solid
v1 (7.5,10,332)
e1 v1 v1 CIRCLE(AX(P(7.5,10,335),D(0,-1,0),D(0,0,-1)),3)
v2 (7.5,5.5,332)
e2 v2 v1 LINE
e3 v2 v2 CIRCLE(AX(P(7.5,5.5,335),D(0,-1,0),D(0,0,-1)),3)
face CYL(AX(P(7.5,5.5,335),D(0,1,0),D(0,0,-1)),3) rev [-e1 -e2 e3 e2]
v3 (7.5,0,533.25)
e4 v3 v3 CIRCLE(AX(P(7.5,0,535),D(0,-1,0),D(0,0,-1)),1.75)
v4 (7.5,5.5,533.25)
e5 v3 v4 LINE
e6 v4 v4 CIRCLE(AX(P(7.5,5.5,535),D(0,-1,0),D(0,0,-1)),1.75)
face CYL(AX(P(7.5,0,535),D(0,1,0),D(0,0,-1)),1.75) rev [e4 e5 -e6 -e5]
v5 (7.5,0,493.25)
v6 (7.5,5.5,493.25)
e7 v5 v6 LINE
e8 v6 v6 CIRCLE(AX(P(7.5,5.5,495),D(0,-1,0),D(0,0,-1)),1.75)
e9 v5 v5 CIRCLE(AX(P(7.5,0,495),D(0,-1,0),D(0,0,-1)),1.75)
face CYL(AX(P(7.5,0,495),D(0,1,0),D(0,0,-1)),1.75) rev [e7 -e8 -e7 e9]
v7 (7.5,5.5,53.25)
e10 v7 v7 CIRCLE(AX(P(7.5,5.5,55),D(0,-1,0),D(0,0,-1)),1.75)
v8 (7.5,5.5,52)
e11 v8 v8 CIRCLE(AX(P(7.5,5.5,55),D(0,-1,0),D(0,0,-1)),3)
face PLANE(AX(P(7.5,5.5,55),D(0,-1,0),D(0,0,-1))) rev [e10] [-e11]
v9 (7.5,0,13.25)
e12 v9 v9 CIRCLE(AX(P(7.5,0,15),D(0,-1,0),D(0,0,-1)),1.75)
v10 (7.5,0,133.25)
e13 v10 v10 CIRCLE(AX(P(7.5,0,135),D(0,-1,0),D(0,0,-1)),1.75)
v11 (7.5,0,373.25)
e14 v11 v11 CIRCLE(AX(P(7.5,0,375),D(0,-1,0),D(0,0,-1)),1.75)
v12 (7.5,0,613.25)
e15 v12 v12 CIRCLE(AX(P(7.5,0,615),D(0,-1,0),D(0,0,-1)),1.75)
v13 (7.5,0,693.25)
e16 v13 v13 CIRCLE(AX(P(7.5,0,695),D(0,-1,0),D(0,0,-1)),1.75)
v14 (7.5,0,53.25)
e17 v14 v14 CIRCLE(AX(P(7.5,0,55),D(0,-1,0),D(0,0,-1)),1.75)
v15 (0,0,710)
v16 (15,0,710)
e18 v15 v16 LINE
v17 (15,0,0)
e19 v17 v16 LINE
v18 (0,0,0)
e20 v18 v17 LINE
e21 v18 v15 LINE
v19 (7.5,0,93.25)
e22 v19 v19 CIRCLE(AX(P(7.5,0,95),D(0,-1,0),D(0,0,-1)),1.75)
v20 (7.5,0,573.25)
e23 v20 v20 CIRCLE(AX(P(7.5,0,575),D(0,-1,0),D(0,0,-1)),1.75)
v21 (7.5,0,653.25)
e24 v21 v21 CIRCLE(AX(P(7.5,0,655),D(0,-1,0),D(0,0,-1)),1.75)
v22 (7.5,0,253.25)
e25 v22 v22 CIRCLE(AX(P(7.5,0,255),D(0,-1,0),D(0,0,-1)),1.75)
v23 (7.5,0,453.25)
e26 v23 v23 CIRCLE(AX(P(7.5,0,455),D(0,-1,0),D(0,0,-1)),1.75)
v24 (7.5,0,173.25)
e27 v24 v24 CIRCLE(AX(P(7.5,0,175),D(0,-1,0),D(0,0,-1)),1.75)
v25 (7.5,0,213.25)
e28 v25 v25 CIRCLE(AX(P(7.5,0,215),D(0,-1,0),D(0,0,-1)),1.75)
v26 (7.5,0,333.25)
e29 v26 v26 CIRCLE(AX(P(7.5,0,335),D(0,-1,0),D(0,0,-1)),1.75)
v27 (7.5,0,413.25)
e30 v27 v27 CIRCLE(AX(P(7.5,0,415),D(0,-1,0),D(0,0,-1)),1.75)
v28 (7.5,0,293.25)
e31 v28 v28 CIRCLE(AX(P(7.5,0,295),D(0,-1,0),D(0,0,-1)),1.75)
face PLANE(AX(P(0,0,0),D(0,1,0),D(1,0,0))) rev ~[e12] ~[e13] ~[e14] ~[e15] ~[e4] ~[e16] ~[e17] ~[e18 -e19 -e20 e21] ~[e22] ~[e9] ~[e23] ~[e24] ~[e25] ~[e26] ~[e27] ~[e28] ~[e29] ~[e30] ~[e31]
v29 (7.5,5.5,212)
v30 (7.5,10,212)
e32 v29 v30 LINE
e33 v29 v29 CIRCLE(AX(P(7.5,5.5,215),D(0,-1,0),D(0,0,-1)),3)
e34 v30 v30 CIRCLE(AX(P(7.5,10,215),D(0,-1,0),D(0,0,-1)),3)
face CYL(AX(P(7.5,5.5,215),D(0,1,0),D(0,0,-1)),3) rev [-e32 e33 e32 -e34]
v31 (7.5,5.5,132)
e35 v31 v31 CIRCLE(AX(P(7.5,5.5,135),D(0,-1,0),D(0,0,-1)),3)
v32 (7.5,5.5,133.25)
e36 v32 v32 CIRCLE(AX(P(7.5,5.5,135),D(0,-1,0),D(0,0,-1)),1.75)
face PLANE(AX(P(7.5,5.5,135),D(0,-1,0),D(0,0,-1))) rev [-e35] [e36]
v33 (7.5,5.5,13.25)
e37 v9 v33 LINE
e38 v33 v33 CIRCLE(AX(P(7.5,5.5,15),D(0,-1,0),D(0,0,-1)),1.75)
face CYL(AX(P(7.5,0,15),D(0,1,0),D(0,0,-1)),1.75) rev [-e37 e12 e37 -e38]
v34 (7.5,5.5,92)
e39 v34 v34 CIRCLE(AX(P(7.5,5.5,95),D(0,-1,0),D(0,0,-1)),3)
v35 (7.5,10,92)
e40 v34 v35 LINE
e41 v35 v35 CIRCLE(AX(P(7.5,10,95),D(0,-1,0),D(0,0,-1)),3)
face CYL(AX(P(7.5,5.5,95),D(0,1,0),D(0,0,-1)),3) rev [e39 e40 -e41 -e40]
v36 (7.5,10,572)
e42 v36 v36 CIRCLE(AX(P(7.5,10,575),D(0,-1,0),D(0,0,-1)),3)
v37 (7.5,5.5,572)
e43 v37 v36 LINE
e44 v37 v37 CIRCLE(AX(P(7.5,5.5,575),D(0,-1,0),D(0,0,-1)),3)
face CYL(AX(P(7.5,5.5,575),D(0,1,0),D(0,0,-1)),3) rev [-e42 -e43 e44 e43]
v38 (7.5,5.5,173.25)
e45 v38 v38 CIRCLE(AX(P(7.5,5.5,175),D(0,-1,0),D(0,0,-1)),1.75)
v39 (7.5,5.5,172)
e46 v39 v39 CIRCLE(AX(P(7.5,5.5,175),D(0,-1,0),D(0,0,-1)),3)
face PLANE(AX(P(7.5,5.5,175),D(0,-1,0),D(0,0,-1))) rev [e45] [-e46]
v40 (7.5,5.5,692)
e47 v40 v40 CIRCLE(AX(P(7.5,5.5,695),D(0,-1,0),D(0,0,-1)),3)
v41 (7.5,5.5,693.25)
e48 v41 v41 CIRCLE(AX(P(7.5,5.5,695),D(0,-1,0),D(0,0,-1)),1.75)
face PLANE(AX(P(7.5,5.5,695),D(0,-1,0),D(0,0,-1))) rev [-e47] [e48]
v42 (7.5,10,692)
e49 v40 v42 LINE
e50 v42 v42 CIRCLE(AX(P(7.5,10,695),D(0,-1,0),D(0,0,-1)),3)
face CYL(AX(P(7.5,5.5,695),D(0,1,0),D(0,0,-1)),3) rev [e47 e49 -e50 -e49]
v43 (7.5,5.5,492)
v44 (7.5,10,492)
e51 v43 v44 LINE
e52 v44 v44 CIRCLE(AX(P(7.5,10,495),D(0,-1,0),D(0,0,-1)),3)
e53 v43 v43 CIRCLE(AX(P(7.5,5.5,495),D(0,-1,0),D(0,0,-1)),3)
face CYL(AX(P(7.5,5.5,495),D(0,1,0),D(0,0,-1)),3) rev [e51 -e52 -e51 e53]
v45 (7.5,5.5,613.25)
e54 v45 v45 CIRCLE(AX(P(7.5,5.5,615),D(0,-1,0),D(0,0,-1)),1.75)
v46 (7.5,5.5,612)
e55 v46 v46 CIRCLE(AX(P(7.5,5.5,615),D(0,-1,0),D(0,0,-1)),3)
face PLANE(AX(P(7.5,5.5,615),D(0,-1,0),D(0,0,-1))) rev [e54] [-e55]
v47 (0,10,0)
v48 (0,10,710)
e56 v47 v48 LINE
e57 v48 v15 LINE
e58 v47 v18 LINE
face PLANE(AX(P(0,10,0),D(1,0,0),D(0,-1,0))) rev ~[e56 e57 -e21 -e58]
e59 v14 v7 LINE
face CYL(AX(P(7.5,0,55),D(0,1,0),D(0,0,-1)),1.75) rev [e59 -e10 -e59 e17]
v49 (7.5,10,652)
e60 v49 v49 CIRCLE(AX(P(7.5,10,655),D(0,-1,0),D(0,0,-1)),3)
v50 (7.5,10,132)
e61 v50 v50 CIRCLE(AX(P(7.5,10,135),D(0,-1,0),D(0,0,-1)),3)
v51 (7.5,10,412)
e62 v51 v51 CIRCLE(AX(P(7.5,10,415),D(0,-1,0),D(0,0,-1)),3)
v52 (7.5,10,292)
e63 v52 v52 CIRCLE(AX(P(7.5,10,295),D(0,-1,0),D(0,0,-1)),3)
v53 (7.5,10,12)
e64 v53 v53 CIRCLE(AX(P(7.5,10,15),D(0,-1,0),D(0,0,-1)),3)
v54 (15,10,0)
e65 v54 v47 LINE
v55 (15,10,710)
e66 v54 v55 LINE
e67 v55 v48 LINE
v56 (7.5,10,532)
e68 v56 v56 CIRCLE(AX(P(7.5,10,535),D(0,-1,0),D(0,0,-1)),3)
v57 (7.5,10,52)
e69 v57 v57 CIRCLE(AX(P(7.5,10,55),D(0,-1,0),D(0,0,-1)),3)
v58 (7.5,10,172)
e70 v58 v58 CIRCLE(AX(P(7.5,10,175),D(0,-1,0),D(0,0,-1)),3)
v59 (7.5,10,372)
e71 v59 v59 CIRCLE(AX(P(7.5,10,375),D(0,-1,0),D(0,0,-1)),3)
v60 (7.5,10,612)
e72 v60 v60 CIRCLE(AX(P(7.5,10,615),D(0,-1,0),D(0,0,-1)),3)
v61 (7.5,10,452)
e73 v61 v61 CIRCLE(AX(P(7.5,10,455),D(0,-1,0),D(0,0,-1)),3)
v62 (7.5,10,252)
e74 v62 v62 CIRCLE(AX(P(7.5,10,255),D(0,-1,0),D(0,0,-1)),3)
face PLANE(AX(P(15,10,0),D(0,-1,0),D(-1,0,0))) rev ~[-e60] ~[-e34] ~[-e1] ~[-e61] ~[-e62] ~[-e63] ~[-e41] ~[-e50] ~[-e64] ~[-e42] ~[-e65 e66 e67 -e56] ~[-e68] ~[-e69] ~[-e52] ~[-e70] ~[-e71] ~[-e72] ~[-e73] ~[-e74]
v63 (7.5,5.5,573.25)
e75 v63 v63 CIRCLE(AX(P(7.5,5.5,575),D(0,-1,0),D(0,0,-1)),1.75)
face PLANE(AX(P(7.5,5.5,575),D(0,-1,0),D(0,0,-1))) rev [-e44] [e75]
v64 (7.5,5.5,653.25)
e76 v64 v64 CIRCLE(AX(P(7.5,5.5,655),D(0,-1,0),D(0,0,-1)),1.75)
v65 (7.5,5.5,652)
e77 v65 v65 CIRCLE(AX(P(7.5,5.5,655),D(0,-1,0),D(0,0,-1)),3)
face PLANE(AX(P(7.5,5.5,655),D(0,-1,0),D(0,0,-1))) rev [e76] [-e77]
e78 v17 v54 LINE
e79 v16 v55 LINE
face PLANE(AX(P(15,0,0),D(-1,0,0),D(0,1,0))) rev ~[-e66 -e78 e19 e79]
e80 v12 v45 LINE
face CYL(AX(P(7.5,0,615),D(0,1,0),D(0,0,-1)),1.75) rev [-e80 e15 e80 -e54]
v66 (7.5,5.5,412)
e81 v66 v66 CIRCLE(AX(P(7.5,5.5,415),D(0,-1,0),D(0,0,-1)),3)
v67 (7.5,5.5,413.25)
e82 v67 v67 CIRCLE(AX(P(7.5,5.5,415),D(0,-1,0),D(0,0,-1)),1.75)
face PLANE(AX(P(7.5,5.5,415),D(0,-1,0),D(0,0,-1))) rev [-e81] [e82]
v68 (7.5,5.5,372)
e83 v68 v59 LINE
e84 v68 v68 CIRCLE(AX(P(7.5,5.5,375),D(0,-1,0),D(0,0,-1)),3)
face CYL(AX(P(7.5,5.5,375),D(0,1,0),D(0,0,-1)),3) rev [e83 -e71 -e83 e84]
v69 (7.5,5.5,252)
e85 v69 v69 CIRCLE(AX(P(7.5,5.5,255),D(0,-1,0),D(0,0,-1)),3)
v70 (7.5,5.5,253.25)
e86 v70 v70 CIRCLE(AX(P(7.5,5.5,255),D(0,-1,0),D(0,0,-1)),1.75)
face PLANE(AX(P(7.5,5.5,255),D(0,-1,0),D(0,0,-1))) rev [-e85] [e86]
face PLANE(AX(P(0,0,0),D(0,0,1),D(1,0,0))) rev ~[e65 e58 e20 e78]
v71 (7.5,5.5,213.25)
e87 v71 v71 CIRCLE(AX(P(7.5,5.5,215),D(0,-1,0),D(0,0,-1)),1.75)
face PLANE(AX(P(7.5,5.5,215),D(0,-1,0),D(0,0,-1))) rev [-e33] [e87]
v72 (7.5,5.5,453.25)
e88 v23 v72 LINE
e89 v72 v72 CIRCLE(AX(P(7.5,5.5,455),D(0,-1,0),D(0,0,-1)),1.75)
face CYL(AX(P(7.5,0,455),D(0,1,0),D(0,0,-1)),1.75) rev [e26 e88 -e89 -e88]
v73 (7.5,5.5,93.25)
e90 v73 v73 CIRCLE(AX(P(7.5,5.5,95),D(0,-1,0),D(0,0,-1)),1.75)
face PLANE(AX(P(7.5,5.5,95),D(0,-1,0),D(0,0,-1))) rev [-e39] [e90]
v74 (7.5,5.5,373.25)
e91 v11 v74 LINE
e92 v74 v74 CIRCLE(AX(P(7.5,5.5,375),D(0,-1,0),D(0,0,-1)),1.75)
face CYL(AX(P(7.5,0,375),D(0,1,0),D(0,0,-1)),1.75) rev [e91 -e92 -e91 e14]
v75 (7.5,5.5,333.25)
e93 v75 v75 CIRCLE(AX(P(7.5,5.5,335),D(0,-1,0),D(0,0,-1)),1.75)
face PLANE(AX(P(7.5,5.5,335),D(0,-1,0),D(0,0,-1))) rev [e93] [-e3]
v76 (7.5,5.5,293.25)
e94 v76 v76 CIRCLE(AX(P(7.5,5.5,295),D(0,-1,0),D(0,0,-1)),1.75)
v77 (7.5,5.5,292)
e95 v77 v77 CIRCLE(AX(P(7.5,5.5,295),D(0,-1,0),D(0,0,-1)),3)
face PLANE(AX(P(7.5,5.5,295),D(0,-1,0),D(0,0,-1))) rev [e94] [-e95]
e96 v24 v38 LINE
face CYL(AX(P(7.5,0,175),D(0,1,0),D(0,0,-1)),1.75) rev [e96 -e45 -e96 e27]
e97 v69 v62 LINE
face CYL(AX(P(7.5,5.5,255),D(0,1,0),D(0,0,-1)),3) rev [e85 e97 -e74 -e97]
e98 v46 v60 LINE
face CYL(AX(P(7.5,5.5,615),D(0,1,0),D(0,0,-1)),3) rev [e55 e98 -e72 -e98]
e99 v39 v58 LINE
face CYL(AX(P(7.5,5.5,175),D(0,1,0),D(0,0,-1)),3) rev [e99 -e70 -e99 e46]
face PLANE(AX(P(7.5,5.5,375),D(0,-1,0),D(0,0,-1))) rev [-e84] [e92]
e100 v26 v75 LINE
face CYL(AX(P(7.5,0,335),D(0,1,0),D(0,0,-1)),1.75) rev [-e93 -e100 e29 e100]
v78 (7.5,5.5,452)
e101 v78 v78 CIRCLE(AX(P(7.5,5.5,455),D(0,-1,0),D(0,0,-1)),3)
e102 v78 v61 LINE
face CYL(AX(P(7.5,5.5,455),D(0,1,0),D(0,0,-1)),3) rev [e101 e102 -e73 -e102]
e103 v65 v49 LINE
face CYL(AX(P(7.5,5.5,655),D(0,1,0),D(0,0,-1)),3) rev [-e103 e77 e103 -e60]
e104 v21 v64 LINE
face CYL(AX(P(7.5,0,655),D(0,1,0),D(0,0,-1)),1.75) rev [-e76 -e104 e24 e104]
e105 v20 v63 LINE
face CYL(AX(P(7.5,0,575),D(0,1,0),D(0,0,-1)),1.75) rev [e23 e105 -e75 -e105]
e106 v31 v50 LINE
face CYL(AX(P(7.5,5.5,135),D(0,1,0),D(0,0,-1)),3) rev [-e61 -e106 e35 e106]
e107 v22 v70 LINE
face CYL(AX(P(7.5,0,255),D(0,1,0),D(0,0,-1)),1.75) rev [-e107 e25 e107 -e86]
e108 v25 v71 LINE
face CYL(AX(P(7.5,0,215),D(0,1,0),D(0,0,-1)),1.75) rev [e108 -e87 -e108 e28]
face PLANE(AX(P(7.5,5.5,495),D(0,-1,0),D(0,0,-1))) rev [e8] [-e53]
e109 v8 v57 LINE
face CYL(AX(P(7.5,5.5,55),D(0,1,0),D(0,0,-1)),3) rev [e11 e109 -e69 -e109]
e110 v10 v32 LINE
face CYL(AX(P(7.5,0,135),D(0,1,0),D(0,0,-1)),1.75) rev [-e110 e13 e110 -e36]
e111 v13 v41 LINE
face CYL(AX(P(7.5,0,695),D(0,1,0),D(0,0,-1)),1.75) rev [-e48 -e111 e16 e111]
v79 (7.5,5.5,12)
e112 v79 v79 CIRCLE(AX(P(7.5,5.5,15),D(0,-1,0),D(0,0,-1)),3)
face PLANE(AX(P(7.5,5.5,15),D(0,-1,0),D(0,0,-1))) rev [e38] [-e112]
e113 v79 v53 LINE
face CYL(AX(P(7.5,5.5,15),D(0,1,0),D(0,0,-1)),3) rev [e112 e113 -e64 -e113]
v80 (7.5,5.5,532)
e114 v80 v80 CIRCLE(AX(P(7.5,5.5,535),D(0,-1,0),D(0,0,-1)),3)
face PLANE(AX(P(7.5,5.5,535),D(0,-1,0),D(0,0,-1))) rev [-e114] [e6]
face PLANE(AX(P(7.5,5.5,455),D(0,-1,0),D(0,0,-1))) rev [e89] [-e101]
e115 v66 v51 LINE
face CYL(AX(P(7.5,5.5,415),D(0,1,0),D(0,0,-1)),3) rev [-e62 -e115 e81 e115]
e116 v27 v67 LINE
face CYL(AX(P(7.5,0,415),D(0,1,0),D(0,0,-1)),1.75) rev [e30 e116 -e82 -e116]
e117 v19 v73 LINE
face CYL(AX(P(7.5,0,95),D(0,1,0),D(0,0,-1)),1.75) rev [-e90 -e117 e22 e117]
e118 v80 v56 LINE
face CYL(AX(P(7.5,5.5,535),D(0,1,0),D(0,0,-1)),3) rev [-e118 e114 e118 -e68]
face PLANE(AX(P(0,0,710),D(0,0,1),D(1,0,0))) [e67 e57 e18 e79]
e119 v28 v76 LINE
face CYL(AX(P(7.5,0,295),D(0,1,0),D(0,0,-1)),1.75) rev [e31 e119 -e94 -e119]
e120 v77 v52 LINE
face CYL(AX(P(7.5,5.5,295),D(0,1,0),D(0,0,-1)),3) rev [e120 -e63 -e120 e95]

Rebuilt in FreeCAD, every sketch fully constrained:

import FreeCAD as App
import Part
import Sketcher
from FreeCAD import Vector
Q = App.Units.Quantity


def add_polygon(sketch, points):
    """Adds a closed chain of lines whose ends are joined by coincident constraints."""
    first, n = sketch.GeometryCount, len(points)
    for a, b in zip(points, points[1:] + points[:1]):
        sketch.addGeometry(Part.LineSegment(App.Vector(*a, 0), App.Vector(*b, 0)), False)
    for i in range(n):
        sketch.addConstraint(Sketcher.Constraint("Coincident", first + i, 2, first + (i + 1) % n, 1))

doc = App.newDocument("Part")
body = doc.addObject("PartDesign::Body", "Body")

sketch1 = body.newObject("Sketcher::SketchObject", "Sketch")
sketch1.AttachmentSupport = (doc.getObject("XY_Plane"), [""])
sketch1.MapMode = "FlatFace"
add_polygon(sketch1, [(0, 10), (0, 0), (15, 0), (15, 10)])
sketch1.addConstraint([
    Sketcher.Constraint("Vertical", 0),
    Sketcher.Constraint("Horizontal", 1),
    Sketcher.Constraint("Vertical", 2),
    Sketcher.Constraint("Horizontal", 3),
    Sketcher.Constraint("Coincident", 0, 2, -1, 1),
    Sketcher.Constraint("DistanceX", 1, 1, 1, 2, Q("15 mm")),
    Sketcher.Constraint("DistanceY", 0, 2, 0, 1, Q("10 mm")),
])
pad1 = body.newObject("PartDesign::Pad", "Pad")
pad1.Profile = sketch1
pad1.Length = 710

sketch2 = body.newObject("Sketcher::SketchObject", "Sketch001")
sketch2.AttachmentSupport = (doc.getObject("YZ_Plane"), [""])
sketch2.MapMode = "FlatFace"
sketch2.AttachmentOffset = App.Placement(Vector(0, 0, 7.5), App.Rotation())
add_polygon(sketch2, [(10, 12), (10, 15), (0, 15), (0, 13.2), (5.5, 13.2), (5.5, 12)])
sketch2.addGeometry(Part.LineSegment(Vector(10, 15, 0), Vector(0, 15, 0)), True)
sketch2.addConstraint([
    Sketcher.Constraint("Vertical", 0),
    Sketcher.Constraint("Horizontal", 1),
    Sketcher.Constraint("Vertical", 2),
    Sketcher.Constraint("Horizontal", 3),
    Sketcher.Constraint("Vertical", 4),
    Sketcher.Constraint("Horizontal", 5),
    Sketcher.Constraint("Horizontal", 6),
    Sketcher.Constraint("Coincident", 6, 1, 0, 2),
    Sketcher.Constraint("PointOnObject", 1, 2, -2),
    Sketcher.Constraint("PointOnObject", 6, 2, -2),
    Sketcher.Constraint("DistanceX", 5, 1, 5, 2, Q("4.5 mm")),
    Sketcher.Constraint("DistanceY", -1, 1, 0, 2, Q("15 mm")),
    Sketcher.Constraint("DistanceX", 1, 2, 1, 1, Q("10 mm")),
    Sketcher.Constraint("DistanceY", 0, 1, 0, 2, Q("3 mm")),
    Sketcher.Constraint("DistanceY", 2, 2, 2, 1, Q("1.75 mm")),
])
groove = body.newObject("PartDesign::Groove", "Groove")
groove.Profile = sketch2
groove.ReferenceAxis = (sketch2, ["Axis0"])
groove.Angle = 360
doc.recompute()

linearpattern = body.newObject("PartDesign::LinearPattern", "LinearPattern")
linearpattern.Originals = [groove]
linearpattern.Direction = (doc.getObject("Z_Axis"), [""])
linearpattern.Mode = "offset"
linearpattern.Offset = 40
linearpattern.Occurrences = 20
body.Tip = linearpattern

doc.recompute()
